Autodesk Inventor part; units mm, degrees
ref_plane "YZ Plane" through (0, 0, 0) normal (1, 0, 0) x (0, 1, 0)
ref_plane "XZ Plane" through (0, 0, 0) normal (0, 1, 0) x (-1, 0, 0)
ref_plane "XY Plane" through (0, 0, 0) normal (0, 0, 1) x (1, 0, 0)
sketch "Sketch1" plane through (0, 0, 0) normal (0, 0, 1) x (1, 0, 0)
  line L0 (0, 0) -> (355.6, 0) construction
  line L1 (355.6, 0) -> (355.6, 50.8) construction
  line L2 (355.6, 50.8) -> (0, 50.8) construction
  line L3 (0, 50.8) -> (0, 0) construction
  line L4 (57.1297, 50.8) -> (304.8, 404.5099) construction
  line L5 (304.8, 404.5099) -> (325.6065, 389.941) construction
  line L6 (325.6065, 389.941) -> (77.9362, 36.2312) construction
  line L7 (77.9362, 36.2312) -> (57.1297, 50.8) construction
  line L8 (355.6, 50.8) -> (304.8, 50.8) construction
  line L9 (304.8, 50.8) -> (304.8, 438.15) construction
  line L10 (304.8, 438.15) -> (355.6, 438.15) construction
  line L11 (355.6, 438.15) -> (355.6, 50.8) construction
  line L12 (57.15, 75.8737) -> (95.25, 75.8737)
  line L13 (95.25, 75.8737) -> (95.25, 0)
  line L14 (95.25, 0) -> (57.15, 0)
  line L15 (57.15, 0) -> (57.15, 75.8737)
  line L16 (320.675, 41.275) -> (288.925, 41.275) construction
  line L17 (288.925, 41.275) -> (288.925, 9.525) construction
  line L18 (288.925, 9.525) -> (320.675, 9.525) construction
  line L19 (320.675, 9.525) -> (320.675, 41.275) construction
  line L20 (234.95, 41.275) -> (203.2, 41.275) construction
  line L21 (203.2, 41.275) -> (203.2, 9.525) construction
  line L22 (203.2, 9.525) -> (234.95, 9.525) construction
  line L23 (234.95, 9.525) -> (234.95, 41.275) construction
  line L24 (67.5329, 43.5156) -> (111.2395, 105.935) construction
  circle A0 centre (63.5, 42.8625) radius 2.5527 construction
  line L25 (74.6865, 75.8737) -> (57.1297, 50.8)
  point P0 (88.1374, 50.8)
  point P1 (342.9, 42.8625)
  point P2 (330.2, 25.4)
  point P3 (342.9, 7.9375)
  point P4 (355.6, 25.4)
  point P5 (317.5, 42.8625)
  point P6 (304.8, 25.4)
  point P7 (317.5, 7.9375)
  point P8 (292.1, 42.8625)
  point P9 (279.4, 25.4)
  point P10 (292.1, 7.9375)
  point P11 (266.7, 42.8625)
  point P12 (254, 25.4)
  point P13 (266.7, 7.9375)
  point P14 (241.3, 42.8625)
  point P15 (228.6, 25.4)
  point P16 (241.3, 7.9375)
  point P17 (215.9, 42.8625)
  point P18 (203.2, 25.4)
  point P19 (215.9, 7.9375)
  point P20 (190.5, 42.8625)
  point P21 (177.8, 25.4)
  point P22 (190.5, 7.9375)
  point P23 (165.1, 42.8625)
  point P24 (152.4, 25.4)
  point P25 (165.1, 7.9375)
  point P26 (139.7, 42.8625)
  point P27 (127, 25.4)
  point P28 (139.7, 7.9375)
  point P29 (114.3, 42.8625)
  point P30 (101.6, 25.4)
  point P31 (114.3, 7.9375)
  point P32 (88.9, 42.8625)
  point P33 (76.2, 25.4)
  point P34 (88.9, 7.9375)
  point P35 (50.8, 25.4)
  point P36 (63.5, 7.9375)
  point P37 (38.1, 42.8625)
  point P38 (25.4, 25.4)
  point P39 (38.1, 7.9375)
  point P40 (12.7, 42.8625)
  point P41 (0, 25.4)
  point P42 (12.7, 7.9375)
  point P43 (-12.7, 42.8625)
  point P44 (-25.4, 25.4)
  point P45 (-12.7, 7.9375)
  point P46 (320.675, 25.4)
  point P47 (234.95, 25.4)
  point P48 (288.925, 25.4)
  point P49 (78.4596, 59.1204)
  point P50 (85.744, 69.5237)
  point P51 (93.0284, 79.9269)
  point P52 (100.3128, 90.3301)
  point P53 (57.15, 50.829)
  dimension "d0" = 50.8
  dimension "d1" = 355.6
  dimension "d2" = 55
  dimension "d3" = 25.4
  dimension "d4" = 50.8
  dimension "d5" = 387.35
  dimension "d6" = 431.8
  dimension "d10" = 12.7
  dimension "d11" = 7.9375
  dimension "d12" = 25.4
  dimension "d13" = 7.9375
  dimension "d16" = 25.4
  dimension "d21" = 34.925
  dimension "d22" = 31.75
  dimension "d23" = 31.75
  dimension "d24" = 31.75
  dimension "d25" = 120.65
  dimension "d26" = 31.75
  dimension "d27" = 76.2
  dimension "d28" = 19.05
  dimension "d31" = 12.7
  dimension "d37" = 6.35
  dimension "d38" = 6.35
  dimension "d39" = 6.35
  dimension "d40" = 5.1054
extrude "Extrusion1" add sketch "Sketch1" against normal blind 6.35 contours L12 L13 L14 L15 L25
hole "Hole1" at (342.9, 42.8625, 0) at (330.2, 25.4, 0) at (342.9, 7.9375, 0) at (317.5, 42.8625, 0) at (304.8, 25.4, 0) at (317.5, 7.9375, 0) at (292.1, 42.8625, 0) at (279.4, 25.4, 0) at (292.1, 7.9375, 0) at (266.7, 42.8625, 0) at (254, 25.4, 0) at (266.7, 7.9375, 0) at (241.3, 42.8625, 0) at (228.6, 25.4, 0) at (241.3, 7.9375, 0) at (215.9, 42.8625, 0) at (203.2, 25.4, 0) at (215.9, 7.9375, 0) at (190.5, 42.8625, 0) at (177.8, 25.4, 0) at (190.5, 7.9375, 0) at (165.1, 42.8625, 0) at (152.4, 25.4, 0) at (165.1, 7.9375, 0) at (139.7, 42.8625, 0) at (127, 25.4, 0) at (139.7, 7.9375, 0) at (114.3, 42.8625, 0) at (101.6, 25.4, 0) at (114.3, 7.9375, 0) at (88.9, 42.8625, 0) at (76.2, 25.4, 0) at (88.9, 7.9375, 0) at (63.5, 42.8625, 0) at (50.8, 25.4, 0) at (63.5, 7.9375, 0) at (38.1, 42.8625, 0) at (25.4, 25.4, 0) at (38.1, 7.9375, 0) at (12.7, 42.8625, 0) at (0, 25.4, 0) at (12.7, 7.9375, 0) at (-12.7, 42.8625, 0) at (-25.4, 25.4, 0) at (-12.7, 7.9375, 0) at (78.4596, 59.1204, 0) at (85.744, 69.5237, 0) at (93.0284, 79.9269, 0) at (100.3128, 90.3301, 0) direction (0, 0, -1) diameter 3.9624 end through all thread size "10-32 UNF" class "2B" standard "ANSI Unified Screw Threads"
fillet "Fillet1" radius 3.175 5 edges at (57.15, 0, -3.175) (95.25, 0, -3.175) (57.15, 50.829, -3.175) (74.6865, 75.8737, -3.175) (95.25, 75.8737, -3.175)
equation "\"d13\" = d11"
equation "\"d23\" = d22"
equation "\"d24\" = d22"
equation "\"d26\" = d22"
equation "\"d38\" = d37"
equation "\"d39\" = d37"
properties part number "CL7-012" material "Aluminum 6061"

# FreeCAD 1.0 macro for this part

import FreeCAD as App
import Part
import Sketcher

V = App.Vector
Q = App.Units.Quantity


def edges_at(feature, points):
    """Names of the edges that pass closest to the given points."""
    edges = feature.Shape.Edges
    near = lambda p: min(range(len(edges)), key=lambda i: edges[i].distToShape(Part.Vertex(*p))[0])
    return sorted({f"Edge{near(p) + 1}" for p in points})

doc = App.newDocument("Part")
body = doc.addObject("PartDesign::Body", "Body")

sketch1 = body.newObject("Sketcher::SketchObject", "Sketch")
sketch1.AttachmentSupport = (doc.getObject("XY_Plane"), [""])
sketch1.MapMode = "FlatFace"
sketch1.addGeometry([
    Part.LineSegment(V(95, 76, 0), V(75, 76, 0)),
    Part.LineSegment(V(75, 76, 0), V(57, 51, 0)),
    Part.LineSegment(V(57, 51, 0), V(57, 0, 0)),
    Part.LineSegment(V(57, 0, 0), V(95, 0, 0)),
    Part.LineSegment(V(95, 0, 0), V(95, 76, 0)),
], False)
sketch1.addConstraint([
    Sketcher.Constraint("Coincident", 0, 2, 1, 1),
    Sketcher.Constraint("Coincident", 1, 2, 2, 1),
    Sketcher.Constraint("Coincident", 2, 2, 3, 1),
    Sketcher.Constraint("Coincident", 3, 2, 4, 1),
    Sketcher.Constraint("Coincident", 4, 2, 0, 1),
    Sketcher.Constraint("Horizontal", 0),
    Sketcher.Constraint("Vertical", 2),
    Sketcher.Constraint("Horizontal", 3),
    Sketcher.Constraint("Vertical", 4),
    Sketcher.Constraint("PointOnObject", 2, 2, -1),
    Sketcher.Constraint("DistanceX", 3, 1, 3, 2, Q("1.5 in")),
    Sketcher.Constraint("Angle", 1, Q("-125 deg")),
    Sketcher.Constraint("DistanceX", -1, 1, 1, 2, Q("2.25 in")),
    Sketcher.Constraint("Distance", 1, Q("1.2037 in")),
    Sketcher.Constraint("DistanceY", 2, 2, 2, 1, Q("50.829 mm")),
])
pad1 = body.newObject("PartDesign::Pad", "Pad")
pad1.Profile = sketch1
pad1.Length = Q("0.25 in")
pad1.Reversed = True

sketch2 = body.newObject("Sketcher::SketchObject", "Sketch001")
sketch2.AttachmentSupport = (doc.getObject("XY_Plane"), [""])
sketch2.MapMode = "FlatFace"
sketch2.addGeometry([
    Part.Circle(V(342.9, 42.9, 0), V(0, 0, 1), 2),
    Part.Circle(V(330.2, 25.4, 0), V(0, 0, 1), 2),
    Part.Circle(V(342.9, 7.9, 0), V(0, 0, 1), 2),
    Part.Circle(V(317.5, 42.9, 0), V(0, 0, 1), 2),
    Part.Circle(V(304.8, 25.4, 0), V(0, 0, 1), 2),
    Part.Circle(V(317.5, 7.9, 0), V(0, 0, 1), 2),
    Part.Circle(V(292.1, 42.9, 0), V(0, 0, 1), 2),
    Part.Circle(V(279.4, 25.4, 0), V(0, 0, 1), 2),
    Part.Circle(V(292.1, 7.9, 0), V(0, 0, 1), 2),
    Part.Circle(V(266.7, 42.9, 0), V(0, 0, 1), 2),
    Part.Circle(V(254, 25.4, 0), V(0, 0, 1), 2),
    Part.Circle(V(266.7, 7.9, 0), V(0, 0, 1), 2),
    Part.Circle(V(241.3, 42.9, 0), V(0, 0, 1), 2),
    Part.Circle(V(228.6, 25.4, 0), V(0, 0, 1), 2),
    Part.Circle(V(241.3, 7.9, 0), V(0, 0, 1), 2),
    Part.Circle(V(215.9, 42.9, 0), V(0, 0, 1), 2),
    Part.Circle(V(203.2, 25.4, 0), V(0, 0, 1), 2),
    Part.Circle(V(215.9, 7.9, 0), V(0, 0, 1), 2),
    Part.Circle(V(190.5, 42.9, 0), V(0, 0, 1), 2),
    Part.Circle(V(177.8, 25.4, 0), V(0, 0, 1), 2),
    Part.Circle(V(190.5, 7.9, 0), V(0, 0, 1), 2),
    Part.Circle(V(165.1, 42.9, 0), V(0, 0, 1), 2),
    Part.Circle(V(152.4, 25.4, 0), V(0, 0, 1), 2),
    Part.Circle(V(165.1, 7.9, 0), V(0, 0, 1), 2),
    Part.Circle(V(139.7, 42.9, 0), V(0, 0, 1), 2),
    Part.Circle(V(127, 25.4, 0), V(0, 0, 1), 2),
    Part.Circle(V(139.7, 7.9, 0), V(0, 0, 1), 2),
    Part.Circle(V(114.3, 42.9, 0), V(0, 0, 1), 2),
    Part.Circle(V(101.6, 25.4, 0), V(0, 0, 1), 2),
    Part.Circle(V(114.3, 7.9, 0), V(0, 0, 1), 2),
    Part.Circle(V(88.9, 42.9, 0), V(0, 0, 1), 2),
    Part.Circle(V(76.2, 25.4, 0), V(0, 0, 1), 2),
    Part.Circle(V(88.9, 7.9, 0), V(0, 0, 1), 2),
    Part.Circle(V(63.5, 42.9, 0), V(0, 0, 1), 2),
    Part.Circle(V(50.8, 25.4, 0), V(0, 0, 1), 2),
    Part.Circle(V(63.5, 7.9, 0), V(0, 0, 1), 2),
    Part.Circle(V(38.1, 42.9, 0), V(0, 0, 1), 2),
    Part.Circle(V(25.4, 25.4, 0), V(0, 0, 1), 2),
    Part.Circle(V(38.1, 7.9, 0), V(0, 0, 1), 2),
    Part.Circle(V(12.7, 42.9, 0), V(0, 0, 1), 2),
    Part.Circle(V(0, 25.4, 0), V(0, 0, 1), 2),
    Part.Circle(V(12.7, 7.9, 0), V(0, 0, 1), 2),
    Part.Circle(V(-12.7, 42.9, 0), V(0, 0, 1), 2),
    Part.Circle(V(-25.4, 25.4, 0), V(0, 0, 1), 2),
    Part.Circle(V(-12.7, 7.9, 0), V(0, 0, 1), 2),
    Part.Circle(V(78.5, 59.1, 0), V(0, 0, 1), 2),
    Part.Circle(V(85.7, 69.5, 0), V(0, 0, 1), 2),
    Part.Circle(V(93, 79.9, 0), V(0, 0, 1), 2),
    Part.Circle(V(100.3, 90.3, 0), V(0, 0, 1), 2),
], False)
sketch2.addConstraint([
    Sketcher.Constraint("Equal", 0, 1),
    Sketcher.Constraint("Equal", 1, 2),
    Sketcher.Constraint("Equal", 2, 3),
    Sketcher.Constraint("Equal", 3, 4),
    Sketcher.Constraint("Equal", 4, 5),
    Sketcher.Constraint("Equal", 5, 6),
    Sketcher.Constraint("Equal", 6, 7),
    Sketcher.Constraint("Equal", 7, 8),
    Sketcher.Constraint("Equal", 8, 9),
    Sketcher.Constraint("Equal", 9, 10),
    Sketcher.Constraint("Equal", 10, 11),
    Sketcher.Constraint("Equal", 11, 12),
    Sketcher.Constraint("Equal", 12, 13),
    Sketcher.Constraint("Equal", 13, 14),
    Sketcher.Constraint("Equal", 14, 15),
    Sketcher.Constraint("Equal", 15, 16),
    Sketcher.Constraint("Equal", 16, 17),
    Sketcher.Constraint("Equal", 17, 18),
    Sketcher.Constraint("Equal", 18, 19),
    Sketcher.Constraint("Equal", 19, 20),
    Sketcher.Constraint("Equal", 20, 21),
    Sketcher.Constraint("Equal", 21, 22),
    Sketcher.Constraint("Equal", 22, 23),
    Sketcher.Constraint("Equal", 23, 24),
    Sketcher.Constraint("Equal", 24, 25),
    Sketcher.Constraint("Equal", 25, 26),
    Sketcher.Constraint("Equal", 26, 27),
    Sketcher.Constraint("Equal", 27, 28),
    Sketcher.Constraint("Equal", 28, 29),
    Sketcher.Constraint("Equal", 29, 30),
    Sketcher.Constraint("Equal", 30, 31),
    Sketcher.Constraint("Equal", 31, 32),
    Sketcher.Constraint("Equal", 32, 33),
    Sketcher.Constraint("Equal", 33, 34),
    Sketcher.Constraint("Equal", 34, 35),
    Sketcher.Constraint("Equal", 35, 36),
    Sketcher.Constraint("Equal", 36, 37),
    Sketcher.Constraint("Equal", 37, 38),
    Sketcher.Constraint("Equal", 38, 39),
    Sketcher.Constraint("Equal", 39, 40),
    Sketcher.Constraint("Equal", 40, 41),
    Sketcher.Constraint("Equal", 41, 42),
    Sketcher.Constraint("Equal", 42, 43),
    Sketcher.Constraint("Equal", 43, 44),
    Sketcher.Constraint("Equal", 44, 45),
    Sketcher.Constraint("Equal", 45, 46),
    Sketcher.Constraint("Equal", 46, 47),
    Sketcher.Constraint("Equal", 47, 48),
    Sketcher.Constraint("Symmetric", 39, 3, 42, 3, -2),
    Sketcher.Constraint("Symmetric", 37, 3, 43, 3, -2),
    Sketcher.Constraint("Symmetric", 41, 3, 44, 3, -2),
    Sketcher.Constraint("PointOnObject", 40, 3, -2),
    Sketcher.Constraint("Horizontal", 0, 3, 3, 3),
    Sketcher.Constraint("Horizontal", 1, 3, 4, 3),
    Sketcher.Constraint("Horizontal", 2, 3, 5, 3),
    Sketcher.Constraint("Horizontal", 3, 3, 6, 3),
    Sketcher.Constraint("Horizontal", 4, 3, 7, 3),
    Sketcher.Constraint("Horizontal", 5, 3, 8, 3),
    Sketcher.Constraint("Horizontal", 6, 3, 9, 3),
    Sketcher.Constraint("Horizontal", 7, 3, 10, 3),
    Sketcher.Constraint("Horizontal", 8, 3, 11, 3),
    Sketcher.Constraint("Horizontal", 9, 3, 12, 3),
    Sketcher.Constraint("Horizontal", 10, 3, 13, 3),
    Sketcher.Constraint("Horizontal", 11, 3, 14, 3),
    Sketcher.Constraint("Horizontal", 12, 3, 15, 3),
    Sketcher.Constraint("Horizontal", 13, 3, 16, 3),
    Sketcher.Constraint("Horizontal", 14, 3, 17, 3),
    Sketcher.Constraint("Horizontal", 15, 3, 18, 3),
    Sketcher.Constraint("Horizontal", 16, 3, 19, 3),
    Sketcher.Constraint("Horizontal", 17, 3, 20, 3),
    Sketcher.Constraint("Horizontal", 18, 3, 21, 3),
    Sketcher.Constraint("Horizontal", 19, 3, 22, 3),
    Sketcher.Constraint("Horizontal", 20, 3, 23, 3),
    Sketcher.Constraint("Horizontal", 21, 3, 24, 3),
    Sketcher.Constraint("Horizontal", 22, 3, 25, 3),
    Sketcher.Constraint("Horizontal", 23, 3, 26, 3),
    Sketcher.Constraint("Horizontal", 24, 3, 27, 3),
    Sketcher.Constraint("Horizontal", 25, 3, 28, 3),
    Sketcher.Constraint("Horizontal", 26, 3, 29, 3),
    Sketcher.Constraint("Horizontal", 27, 3, 30, 3),
    Sketcher.Constraint("Horizontal", 28, 3, 31, 3),
    Sketcher.Constraint("Horizontal", 29, 3, 32, 3),
    Sketcher.Constraint("Horizontal", 30, 3, 33, 3),
    Sketcher.Constraint("Horizontal", 31, 3, 34, 3),
    Sketcher.Constraint("Horizontal", 32, 3, 35, 3),
    Sketcher.Constraint("Horizontal", 33, 3, 36, 3),
    Sketcher.Constraint("Horizontal", 34, 3, 37, 3),
    Sketcher.Constraint("Horizontal", 35, 3, 38, 3),
    Sketcher.Constraint("Horizontal", 36, 3, 39, 3),
    Sketcher.Constraint("Horizontal", 37, 3, 40, 3),
    Sketcher.Constraint("Horizontal", 38, 3, 41, 3),
    Sketcher.Constraint("Vertical", 0, 3, 2, 3),
    Sketcher.Constraint("Vertical", 3, 3, 5, 3),
    Sketcher.Constraint("Vertical", 6, 3, 8, 3),
    Sketcher.Constraint("Vertical", 9, 3, 11, 3),
    Sketcher.Constraint("Vertical", 12, 3, 14, 3),
    Sketcher.Constraint("Vertical", 15, 3, 17, 3),
    Sketcher.Constraint("Vertical", 18, 3, 20, 3),
    Sketcher.Constraint("Vertical", 21, 3, 23, 3),
    Sketcher.Constraint("Vertical", 24, 3, 26, 3),
    Sketcher.Constraint("Vertical", 27, 3, 29, 3),
    Sketcher.Constraint("Vertical", 30, 3, 32, 3),
    Sketcher.Constraint("Vertical", 33, 3, 35, 3),
    Sketcher.Constraint("Vertical", 36, 3, 38, 3),
    Sketcher.Constraint("Vertical", 39, 3, 41, 3),
    Sketcher.Constraint("Diameter", 0, Q("0.156 in")),
    Sketcher.Constraint("DistanceX", -1, 1, 1, 3, Q("13 in")),
    Sketcher.Constraint("DistanceY", -1, 1, 1, 3, Q("1 in")),
    Sketcher.Constraint("DistanceX", -1, 1, 4, 3, Q("12 in")),
    Sketcher.Constraint("DistanceX", -1, 1, 7, 3, Q("11 in")),
    Sketcher.Constraint("DistanceX", -1, 1, 10, 3, Q("10 in")),
    Sketcher.Constraint("DistanceX", -1, 1, 13, 3, Q("9 in")),
    Sketcher.Constraint("DistanceX", -1, 1, 16, 3, Q("8 in")),
    Sketcher.Constraint("DistanceX", -1, 1, 19, 3, Q("7 in")),
    Sketcher.Constraint("DistanceX", -1, 1, 22, 3, Q("6 in")),
    Sketcher.Constraint("DistanceX", -1, 1, 25, 3, Q("5 in")),
    Sketcher.Constraint("DistanceX", -1, 1, 28, 3, Q("4 in")),
    Sketcher.Constraint("DistanceX", -1, 1, 31, 3, Q("3 in")),
    Sketcher.Constraint("DistanceX", -1, 1, 34, 3, Q("2 in")),
    Sketcher.Constraint("DistanceX", -1, 1, 37, 3, Q("1 in")),
    Sketcher.Constraint("DistanceX", 3, 3, 0, 3, Q("1 in")),
    Sketcher.Constraint("DistanceX", 6, 3, 3, 3, Q("1 in")),
    Sketcher.Constraint("DistanceX", 9, 3, 6, 3, Q("1 in")),
    Sketcher.Constraint("DistanceX", 12, 3, 9, 3, Q("1 in")),
    Sketcher.Constraint("DistanceX", 15, 3, 12, 3, Q("1 in")),
    Sketcher.Constraint("DistanceX", 18, 3, 15, 3, Q("1 in")),
    Sketcher.Constraint("DistanceX", 21, 3, 18, 3, Q("1 in")),
    Sketcher.Constraint("DistanceX", 24, 3, 21, 3, Q("1 in")),
    Sketcher.Constraint("DistanceX", 27, 3, 24, 3, Q("1 in")),
    Sketcher.Constraint("DistanceX", 30, 3, 27, 3, Q("1 in")),
    Sketcher.Constraint("DistanceX", 33, 3, 30, 3, Q("1 in")),
    Sketcher.Constraint("DistanceX", 36, 3, 33, 3, Q("1 in")),
    Sketcher.Constraint("DistanceX", 39, 3, 36, 3, Q("1 in")),
    Sketcher.Constraint("DistanceX", 42, 3, 39, 3, Q("1 in")),
    Sketcher.Constraint("DistanceY", -1, 1, 0, 3, Q("1.6875 in")),
    Sketcher.Constraint("DistanceY", -1, 1, 2, 3, Q("0.3125 in")),
    Sketcher.Constraint("DistanceY", -1, 1, 48, 3, Q("3.5563 in")),
    Sketcher.Constraint("DistanceX", -1, 1, 45, 3, Q("78.4596 mm")),
    Sketcher.Constraint("DistanceY", -1, 1, 45, 3, Q("59.1204 mm")),
    Sketcher.Constraint("DistanceX", -1, 1, 46, 3, Q("85.744 mm")),
    Sketcher.Constraint("DistanceY", -1, 1, 46, 3, Q("69.5237 mm")),
    Sketcher.Constraint("DistanceX", -1, 1, 47, 3, Q("93.0284 mm")),
    Sketcher.Constraint("DistanceY", -1, 1, 47, 3, Q("79.927 mm")),
    Sketcher.Constraint("DistanceX", -1, 1, 48, 3, Q("100.3128 mm")),
])
doc.recompute()
hole = body.newObject("PartDesign::Hole", "Hole")
hole.Profile = sketch2
hole.ThreadType = "None"
hole.Diameter = Q("0.156 in")
hole.DepthType = "ThroughAll"
doc.recompute()

fillet = body.newObject("PartDesign::Fillet", "Fillet")
fillet.Base = (hole, edges_at(hole, [
    (57.15, 0, -3.175),
    (95.25, 0, -3.175),
    (57.15, 50.829, -3.175),
    (74.686, 75.874, -3.175),
    (95.25, 75.874, -3.175),
]))
fillet.Radius = Q("0.125 in")

doc.recompute()
